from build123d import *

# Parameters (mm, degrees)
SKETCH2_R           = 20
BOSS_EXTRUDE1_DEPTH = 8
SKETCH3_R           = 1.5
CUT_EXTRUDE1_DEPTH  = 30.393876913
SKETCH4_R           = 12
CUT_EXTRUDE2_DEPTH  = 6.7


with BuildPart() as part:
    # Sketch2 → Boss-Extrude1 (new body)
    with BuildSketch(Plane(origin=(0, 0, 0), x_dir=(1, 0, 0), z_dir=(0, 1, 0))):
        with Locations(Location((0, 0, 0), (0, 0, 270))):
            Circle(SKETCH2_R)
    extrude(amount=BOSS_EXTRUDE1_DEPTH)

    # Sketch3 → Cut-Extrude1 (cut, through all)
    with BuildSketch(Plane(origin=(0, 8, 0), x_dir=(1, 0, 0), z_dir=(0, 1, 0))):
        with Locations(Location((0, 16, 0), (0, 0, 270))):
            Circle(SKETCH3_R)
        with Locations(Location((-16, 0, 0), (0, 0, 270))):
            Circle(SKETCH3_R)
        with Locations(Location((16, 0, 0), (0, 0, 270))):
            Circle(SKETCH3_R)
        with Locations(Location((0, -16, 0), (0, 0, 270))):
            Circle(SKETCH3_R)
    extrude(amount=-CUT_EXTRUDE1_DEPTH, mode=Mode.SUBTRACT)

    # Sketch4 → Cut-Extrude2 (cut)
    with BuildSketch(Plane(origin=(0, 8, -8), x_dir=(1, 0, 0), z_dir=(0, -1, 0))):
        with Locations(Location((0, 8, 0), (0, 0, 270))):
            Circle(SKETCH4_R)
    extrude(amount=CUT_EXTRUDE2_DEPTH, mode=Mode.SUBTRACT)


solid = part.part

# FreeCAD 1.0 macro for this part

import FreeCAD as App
import Part
import Sketcher

doc = App.newDocument("Part")
body = doc.addObject("PartDesign::Body", "Body")

sketch1 = body.newObject("Sketcher::SketchObject", "Sketch")
sketch1.AttachmentSupport = (doc.getObject("XZ_Plane"), [""])
sketch1.MapMode = "FlatFace"
sketch1.addGeometry(Part.Circle(App.Vector(0, 0, 0), App.Vector(0, 0, 1), 20), False)
sketch1.addConstraint(Sketcher.Constraint("Coincident", 0, 3, -1, 1))
sketch1.addConstraint(Sketcher.Constraint("Diameter", 0, 40.0))
pad1 = body.newObject("PartDesign::Pad", "Pad")
pad1.Profile = sketch1
pad1.Length = 8
pad1.Reversed = True

sketch2 = body.newObject("Sketcher::SketchObject", "Sketch001")
sketch2.AttachmentSupport = (doc.getObject("XZ_Plane"), [""])
sketch2.MapMode = "FlatFace"
sketch2.AttachmentOffset = App.Placement(App.Vector(0, 0, -8), App.Rotation())
sketch2.addGeometry(Part.Circle(App.Vector(0, -16, 0), App.Vector(0, 0, 1), 1.5), False)
sketch2.addGeometry(Part.Circle(App.Vector(-16, 0, 0), App.Vector(0, 0, 1), 1.5), False)
sketch2.addGeometry(Part.Circle(App.Vector(16, 0, 0), App.Vector(0, 0, 1), 1.5), False)
sketch2.addGeometry(Part.Circle(App.Vector(0, 16, 0), App.Vector(0, 0, 1), 1.5), False)
sketch2.addConstraint(Sketcher.Constraint("Equal", 0, 1))
sketch2.addConstraint(Sketcher.Constraint("Equal", 1, 2))
sketch2.addConstraint(Sketcher.Constraint("Equal", 2, 3))
sketch2.addConstraint(Sketcher.Constraint("Symmetric", 1, 3, 2, 3, -1, 1))
sketch2.addConstraint(Sketcher.Constraint("Symmetric", 0, 3, 3, 3, -1, 1))
sketch2.addConstraint(Sketcher.Constraint("PointOnObject", 0, 3, -2))
sketch2.addConstraint(Sketcher.Constraint("PointOnObject", 1, 3, -1))
sketch2.addConstraint(Sketcher.Constraint("Diameter", 0, 3.0))
sketch2.addConstraint(Sketcher.Constraint("DistanceY", 0, 3, -1, 1, 16.0))
sketch2.addConstraint(Sketcher.Constraint("DistanceX", 1, 3, -1, 1, 16.0))
pocket1 = body.newObject("PartDesign::Pocket", "Pocket")
pocket1.Profile = sketch2
pocket1.Type = "ThroughAll"
pocket1.Reversed = True

sketch3 = body.newObject("Sketcher::SketchObject", "Sketch002")
sketch3.AttachmentSupport = (doc.getObject("XZ_Plane"), [""])
sketch3.MapMode = "FlatFace"
sketch3.AttachmentOffset = App.Placement(App.Vector(0, 0, -8), App.Rotation())
sketch3.addGeometry(Part.Circle(App.Vector(0, 0, 0), App.Vector(0, 0, 1), 12), False)
sketch3.addConstraint(Sketcher.Constraint("Coincident", 0, 3, -1, 1))
sketch3.addConstraint(Sketcher.Constraint("Diameter", 0, 24.0))
pocket2 = body.newObject("PartDesign::Pocket", "Pocket001")
pocket2.Profile = sketch3
pocket2.Length = 6.7
pocket2.Reversed = True

doc.recompute()
